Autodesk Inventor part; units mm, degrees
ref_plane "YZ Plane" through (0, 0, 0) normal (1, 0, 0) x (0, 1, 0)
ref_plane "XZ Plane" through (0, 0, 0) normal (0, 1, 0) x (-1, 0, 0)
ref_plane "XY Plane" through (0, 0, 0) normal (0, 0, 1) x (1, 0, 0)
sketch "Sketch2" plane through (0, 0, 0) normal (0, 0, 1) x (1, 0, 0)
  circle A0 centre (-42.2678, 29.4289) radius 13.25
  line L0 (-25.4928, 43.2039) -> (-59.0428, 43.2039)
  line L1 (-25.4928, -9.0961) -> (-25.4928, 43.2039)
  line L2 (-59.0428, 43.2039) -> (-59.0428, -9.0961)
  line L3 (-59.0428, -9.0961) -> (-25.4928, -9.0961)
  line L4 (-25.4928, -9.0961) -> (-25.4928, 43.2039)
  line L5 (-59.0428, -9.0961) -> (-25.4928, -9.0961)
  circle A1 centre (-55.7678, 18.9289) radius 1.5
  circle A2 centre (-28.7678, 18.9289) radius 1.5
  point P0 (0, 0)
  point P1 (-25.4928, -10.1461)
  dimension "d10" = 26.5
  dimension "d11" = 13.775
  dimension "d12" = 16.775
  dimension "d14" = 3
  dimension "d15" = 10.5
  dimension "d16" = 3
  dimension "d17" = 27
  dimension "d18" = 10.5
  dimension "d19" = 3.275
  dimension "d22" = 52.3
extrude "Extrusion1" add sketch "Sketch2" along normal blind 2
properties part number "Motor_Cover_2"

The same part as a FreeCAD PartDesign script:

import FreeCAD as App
import Part
import Sketcher
from FreeCAD import Vector

doc = App.newDocument("Part")
body = doc.addObject("PartDesign::Body", "Body")

# Sketch on XY plane
sketch1 = doc.addObject("Sketcher::SketchObject", "Sketch")
body.addObject(sketch1)
sketch1.AttachmentSupport = (doc.XY_Plane, [""])
sketch1.MapMode = "FlatFace"
sketch1.addGeometry(Part.LineSegment(Vector(-25.5, -9.1, 0), Vector(-25.5, 43.2, 0)), False)
sketch1.addGeometry(Part.LineSegment(Vector(-25.5, 43.2, 0), Vector(-59, 43.2, 0)), False)
sketch1.addGeometry(Part.LineSegment(Vector(-59, 43.2, 0), Vector(-59, -9.1, 0)), False)
sketch1.addGeometry(Part.LineSegment(Vector(-59, -9.1, 0), Vector(-25.5, -9.1, 0)), False)
sketch1.addGeometry(Part.Circle(Vector(-55.8, 18.9, 0), Vector(0, 0, 1), 1.5), False)
sketch1.addGeometry(Part.Circle(Vector(-42.3, 29.4, 0), Vector(0, 0, 1), 13.2), False)
sketch1.addGeometry(Part.Circle(Vector(-28.8, 18.9, 0), Vector(0, 0, 1), 1.5), False)
sketch1.addConstraint(Sketcher.Constraint("Coincident", 0, 2, 1, 1))
sketch1.addConstraint(Sketcher.Constraint("Coincident", 1, 2, 2, 1))
sketch1.addConstraint(Sketcher.Constraint("Coincident", 2, 2, 3, 1))
sketch1.addConstraint(Sketcher.Constraint("Coincident", 3, 2, 0, 1))
sketch1.addConstraint(Sketcher.Constraint("Vertical", 0))
sketch1.addConstraint(Sketcher.Constraint("Horizontal", 1))
sketch1.addConstraint(Sketcher.Constraint("Vertical", 2))
sketch1.addConstraint(Sketcher.Constraint("Horizontal", 3))
sketch1.addConstraint(Sketcher.Constraint("Equal", 4, 6))
sketch1.addConstraint(Sketcher.Constraint("Horizontal", 4, 3, 6, 3))
sketch1.addConstraint(Sketcher.Constraint("Diameter", 4, 3.0))
sketch1.addConstraint(Sketcher.Constraint("Diameter", 5, 26.5))
sketch1.addConstraint(Sketcher.Constraint("DistanceY", 0, 1, 0, 2, 52.3))
sketch1.addConstraint(Sketcher.Constraint("DistanceX", 4, 3, 6, 3, 27.0))
sketch1.addConstraint(Sketcher.Constraint("DistanceY", 4, 3, 5, 3, 10.5))
sketch1.addConstraint(Sketcher.Constraint("DistanceX", 5, 3, 0, 2, 16.775))
sketch1.addConstraint(Sketcher.Constraint("DistanceY", 5, 3, 0, 2, 13.775))
sketch1.addConstraint(Sketcher.Constraint("DistanceX", 6, 3, 0, 2, 3.275))
sketch1.addConstraint(Sketcher.Constraint("DistanceX", 1, 2, 5, 3, 16.775))
sketch1.addConstraint(Sketcher.Constraint("DistanceY", -1, 1, 4, 3, 18.929))
sketch1.addConstraint(Sketcher.Constraint("DistanceX", 4, 3, -1, 1, 55.7678))
pad1 = doc.addObject("PartDesign::Pad", "Pad")
body.addObject(pad1)
pad1.Profile = sketch1
pad1.Length = 2

doc.recompute()
